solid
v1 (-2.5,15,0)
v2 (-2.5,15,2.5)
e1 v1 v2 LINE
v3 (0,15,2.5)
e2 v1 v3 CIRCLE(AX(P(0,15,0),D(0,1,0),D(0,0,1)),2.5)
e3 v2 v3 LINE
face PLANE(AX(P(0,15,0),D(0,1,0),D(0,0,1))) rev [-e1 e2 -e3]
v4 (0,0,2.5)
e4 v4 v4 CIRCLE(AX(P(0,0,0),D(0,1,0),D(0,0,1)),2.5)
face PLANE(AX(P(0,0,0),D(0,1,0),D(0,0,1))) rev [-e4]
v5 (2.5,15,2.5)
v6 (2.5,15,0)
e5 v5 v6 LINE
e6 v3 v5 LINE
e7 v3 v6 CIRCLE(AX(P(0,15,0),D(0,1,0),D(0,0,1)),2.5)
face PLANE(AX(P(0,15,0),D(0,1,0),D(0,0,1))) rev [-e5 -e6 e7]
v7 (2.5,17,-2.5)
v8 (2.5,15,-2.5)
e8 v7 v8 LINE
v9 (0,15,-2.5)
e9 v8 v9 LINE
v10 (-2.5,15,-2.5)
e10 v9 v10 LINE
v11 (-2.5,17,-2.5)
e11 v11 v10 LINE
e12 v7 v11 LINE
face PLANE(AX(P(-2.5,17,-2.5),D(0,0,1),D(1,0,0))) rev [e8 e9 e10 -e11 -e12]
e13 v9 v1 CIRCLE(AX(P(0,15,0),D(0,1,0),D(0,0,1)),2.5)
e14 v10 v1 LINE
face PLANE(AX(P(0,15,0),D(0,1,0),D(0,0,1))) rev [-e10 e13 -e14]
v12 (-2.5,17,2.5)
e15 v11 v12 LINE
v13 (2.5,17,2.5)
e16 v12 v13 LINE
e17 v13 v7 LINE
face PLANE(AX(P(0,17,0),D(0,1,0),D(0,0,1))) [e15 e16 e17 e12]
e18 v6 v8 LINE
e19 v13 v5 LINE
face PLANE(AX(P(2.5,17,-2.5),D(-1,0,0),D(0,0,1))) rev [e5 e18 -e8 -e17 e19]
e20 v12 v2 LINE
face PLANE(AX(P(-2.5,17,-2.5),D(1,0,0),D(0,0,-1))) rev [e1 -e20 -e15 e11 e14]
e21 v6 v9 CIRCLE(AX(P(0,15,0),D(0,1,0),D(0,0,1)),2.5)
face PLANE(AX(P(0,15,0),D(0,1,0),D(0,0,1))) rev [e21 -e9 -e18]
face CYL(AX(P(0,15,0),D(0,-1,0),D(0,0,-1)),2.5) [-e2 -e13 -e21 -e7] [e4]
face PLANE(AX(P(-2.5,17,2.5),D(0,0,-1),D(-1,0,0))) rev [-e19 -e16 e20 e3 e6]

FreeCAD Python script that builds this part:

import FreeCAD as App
import Part
import Sketcher
from FreeCAD import Vector


def add_polygon(sketch, points):
    """Adds a closed chain of lines whose ends are joined by coincident constraints."""
    first, n = sketch.GeometryCount, len(points)
    for a, b in zip(points, points[1:] + points[:1]):
        sketch.addGeometry(Part.LineSegment(App.Vector(*a, 0), App.Vector(*b, 0)), False)
    for i in range(n):
        sketch.addConstraint(Sketcher.Constraint("Coincident", first + i, 2, first + (i + 1) % n, 1))

doc = App.newDocument("Part")
body = doc.addObject("PartDesign::Body", "Body")

# Sketch on XZ plane
sketch1 = doc.addObject("Sketcher::SketchObject", "Sketch")
body.addObject(sketch1)
sketch1.AttachmentSupport = (doc.XZ_Plane, [""])
sketch1.MapMode = "FlatFace"
sketch1.addGeometry(Part.Circle(Vector(0, 0, 0), Vector(0, 0, 1), 2.5), False)
sketch1.addConstraint(Sketcher.Constraint("Coincident", 0, 3, -1, 1))
sketch1.addConstraint(Sketcher.Constraint("Diameter", 0, 5.0))
pad1 = doc.addObject("PartDesign::Pad", "Pad")
body.addObject(pad1)
pad1.Profile = sketch1
pad1.Length = 15
pad1.Reversed = True

# Sketch on XZ plane
sketch2 = doc.addObject("Sketcher::SketchObject", "Sketch001")
body.addObject(sketch2)
sketch2.AttachmentSupport = (doc.XZ_Plane, [""])
sketch2.MapMode = "FlatFace"
sketch2.AttachmentOffset = App.Placement(Vector(0, 0, -15), App.Rotation())
add_polygon(sketch2, [(-2, -2), (-2, 2), (2, 2), (2, -2)])  # lines 0-3
sketch2.addConstraint(Sketcher.Constraint("Vertical", 0))
sketch2.addConstraint(Sketcher.Constraint("Horizontal", 1))
sketch2.addConstraint(Sketcher.Constraint("Vertical", 2))
sketch2.addConstraint(Sketcher.Constraint("Horizontal", 3))
sketch2.addConstraint(Sketcher.Constraint("Symmetric", 0, 2, 2, 2, -1, 1))
sketch2.addConstraint(Sketcher.Constraint("Equal", 3, 0))
sketch2.addConstraint(Sketcher.Constraint("DistanceX", 1, 1, 1, 2, 5.0))
pad2 = doc.addObject("PartDesign::Pad", "Pad001")
body.addObject(pad2)
pad2.Profile = sketch2
pad2.Length = 2
pad2.Reversed = True

doc.recompute()
